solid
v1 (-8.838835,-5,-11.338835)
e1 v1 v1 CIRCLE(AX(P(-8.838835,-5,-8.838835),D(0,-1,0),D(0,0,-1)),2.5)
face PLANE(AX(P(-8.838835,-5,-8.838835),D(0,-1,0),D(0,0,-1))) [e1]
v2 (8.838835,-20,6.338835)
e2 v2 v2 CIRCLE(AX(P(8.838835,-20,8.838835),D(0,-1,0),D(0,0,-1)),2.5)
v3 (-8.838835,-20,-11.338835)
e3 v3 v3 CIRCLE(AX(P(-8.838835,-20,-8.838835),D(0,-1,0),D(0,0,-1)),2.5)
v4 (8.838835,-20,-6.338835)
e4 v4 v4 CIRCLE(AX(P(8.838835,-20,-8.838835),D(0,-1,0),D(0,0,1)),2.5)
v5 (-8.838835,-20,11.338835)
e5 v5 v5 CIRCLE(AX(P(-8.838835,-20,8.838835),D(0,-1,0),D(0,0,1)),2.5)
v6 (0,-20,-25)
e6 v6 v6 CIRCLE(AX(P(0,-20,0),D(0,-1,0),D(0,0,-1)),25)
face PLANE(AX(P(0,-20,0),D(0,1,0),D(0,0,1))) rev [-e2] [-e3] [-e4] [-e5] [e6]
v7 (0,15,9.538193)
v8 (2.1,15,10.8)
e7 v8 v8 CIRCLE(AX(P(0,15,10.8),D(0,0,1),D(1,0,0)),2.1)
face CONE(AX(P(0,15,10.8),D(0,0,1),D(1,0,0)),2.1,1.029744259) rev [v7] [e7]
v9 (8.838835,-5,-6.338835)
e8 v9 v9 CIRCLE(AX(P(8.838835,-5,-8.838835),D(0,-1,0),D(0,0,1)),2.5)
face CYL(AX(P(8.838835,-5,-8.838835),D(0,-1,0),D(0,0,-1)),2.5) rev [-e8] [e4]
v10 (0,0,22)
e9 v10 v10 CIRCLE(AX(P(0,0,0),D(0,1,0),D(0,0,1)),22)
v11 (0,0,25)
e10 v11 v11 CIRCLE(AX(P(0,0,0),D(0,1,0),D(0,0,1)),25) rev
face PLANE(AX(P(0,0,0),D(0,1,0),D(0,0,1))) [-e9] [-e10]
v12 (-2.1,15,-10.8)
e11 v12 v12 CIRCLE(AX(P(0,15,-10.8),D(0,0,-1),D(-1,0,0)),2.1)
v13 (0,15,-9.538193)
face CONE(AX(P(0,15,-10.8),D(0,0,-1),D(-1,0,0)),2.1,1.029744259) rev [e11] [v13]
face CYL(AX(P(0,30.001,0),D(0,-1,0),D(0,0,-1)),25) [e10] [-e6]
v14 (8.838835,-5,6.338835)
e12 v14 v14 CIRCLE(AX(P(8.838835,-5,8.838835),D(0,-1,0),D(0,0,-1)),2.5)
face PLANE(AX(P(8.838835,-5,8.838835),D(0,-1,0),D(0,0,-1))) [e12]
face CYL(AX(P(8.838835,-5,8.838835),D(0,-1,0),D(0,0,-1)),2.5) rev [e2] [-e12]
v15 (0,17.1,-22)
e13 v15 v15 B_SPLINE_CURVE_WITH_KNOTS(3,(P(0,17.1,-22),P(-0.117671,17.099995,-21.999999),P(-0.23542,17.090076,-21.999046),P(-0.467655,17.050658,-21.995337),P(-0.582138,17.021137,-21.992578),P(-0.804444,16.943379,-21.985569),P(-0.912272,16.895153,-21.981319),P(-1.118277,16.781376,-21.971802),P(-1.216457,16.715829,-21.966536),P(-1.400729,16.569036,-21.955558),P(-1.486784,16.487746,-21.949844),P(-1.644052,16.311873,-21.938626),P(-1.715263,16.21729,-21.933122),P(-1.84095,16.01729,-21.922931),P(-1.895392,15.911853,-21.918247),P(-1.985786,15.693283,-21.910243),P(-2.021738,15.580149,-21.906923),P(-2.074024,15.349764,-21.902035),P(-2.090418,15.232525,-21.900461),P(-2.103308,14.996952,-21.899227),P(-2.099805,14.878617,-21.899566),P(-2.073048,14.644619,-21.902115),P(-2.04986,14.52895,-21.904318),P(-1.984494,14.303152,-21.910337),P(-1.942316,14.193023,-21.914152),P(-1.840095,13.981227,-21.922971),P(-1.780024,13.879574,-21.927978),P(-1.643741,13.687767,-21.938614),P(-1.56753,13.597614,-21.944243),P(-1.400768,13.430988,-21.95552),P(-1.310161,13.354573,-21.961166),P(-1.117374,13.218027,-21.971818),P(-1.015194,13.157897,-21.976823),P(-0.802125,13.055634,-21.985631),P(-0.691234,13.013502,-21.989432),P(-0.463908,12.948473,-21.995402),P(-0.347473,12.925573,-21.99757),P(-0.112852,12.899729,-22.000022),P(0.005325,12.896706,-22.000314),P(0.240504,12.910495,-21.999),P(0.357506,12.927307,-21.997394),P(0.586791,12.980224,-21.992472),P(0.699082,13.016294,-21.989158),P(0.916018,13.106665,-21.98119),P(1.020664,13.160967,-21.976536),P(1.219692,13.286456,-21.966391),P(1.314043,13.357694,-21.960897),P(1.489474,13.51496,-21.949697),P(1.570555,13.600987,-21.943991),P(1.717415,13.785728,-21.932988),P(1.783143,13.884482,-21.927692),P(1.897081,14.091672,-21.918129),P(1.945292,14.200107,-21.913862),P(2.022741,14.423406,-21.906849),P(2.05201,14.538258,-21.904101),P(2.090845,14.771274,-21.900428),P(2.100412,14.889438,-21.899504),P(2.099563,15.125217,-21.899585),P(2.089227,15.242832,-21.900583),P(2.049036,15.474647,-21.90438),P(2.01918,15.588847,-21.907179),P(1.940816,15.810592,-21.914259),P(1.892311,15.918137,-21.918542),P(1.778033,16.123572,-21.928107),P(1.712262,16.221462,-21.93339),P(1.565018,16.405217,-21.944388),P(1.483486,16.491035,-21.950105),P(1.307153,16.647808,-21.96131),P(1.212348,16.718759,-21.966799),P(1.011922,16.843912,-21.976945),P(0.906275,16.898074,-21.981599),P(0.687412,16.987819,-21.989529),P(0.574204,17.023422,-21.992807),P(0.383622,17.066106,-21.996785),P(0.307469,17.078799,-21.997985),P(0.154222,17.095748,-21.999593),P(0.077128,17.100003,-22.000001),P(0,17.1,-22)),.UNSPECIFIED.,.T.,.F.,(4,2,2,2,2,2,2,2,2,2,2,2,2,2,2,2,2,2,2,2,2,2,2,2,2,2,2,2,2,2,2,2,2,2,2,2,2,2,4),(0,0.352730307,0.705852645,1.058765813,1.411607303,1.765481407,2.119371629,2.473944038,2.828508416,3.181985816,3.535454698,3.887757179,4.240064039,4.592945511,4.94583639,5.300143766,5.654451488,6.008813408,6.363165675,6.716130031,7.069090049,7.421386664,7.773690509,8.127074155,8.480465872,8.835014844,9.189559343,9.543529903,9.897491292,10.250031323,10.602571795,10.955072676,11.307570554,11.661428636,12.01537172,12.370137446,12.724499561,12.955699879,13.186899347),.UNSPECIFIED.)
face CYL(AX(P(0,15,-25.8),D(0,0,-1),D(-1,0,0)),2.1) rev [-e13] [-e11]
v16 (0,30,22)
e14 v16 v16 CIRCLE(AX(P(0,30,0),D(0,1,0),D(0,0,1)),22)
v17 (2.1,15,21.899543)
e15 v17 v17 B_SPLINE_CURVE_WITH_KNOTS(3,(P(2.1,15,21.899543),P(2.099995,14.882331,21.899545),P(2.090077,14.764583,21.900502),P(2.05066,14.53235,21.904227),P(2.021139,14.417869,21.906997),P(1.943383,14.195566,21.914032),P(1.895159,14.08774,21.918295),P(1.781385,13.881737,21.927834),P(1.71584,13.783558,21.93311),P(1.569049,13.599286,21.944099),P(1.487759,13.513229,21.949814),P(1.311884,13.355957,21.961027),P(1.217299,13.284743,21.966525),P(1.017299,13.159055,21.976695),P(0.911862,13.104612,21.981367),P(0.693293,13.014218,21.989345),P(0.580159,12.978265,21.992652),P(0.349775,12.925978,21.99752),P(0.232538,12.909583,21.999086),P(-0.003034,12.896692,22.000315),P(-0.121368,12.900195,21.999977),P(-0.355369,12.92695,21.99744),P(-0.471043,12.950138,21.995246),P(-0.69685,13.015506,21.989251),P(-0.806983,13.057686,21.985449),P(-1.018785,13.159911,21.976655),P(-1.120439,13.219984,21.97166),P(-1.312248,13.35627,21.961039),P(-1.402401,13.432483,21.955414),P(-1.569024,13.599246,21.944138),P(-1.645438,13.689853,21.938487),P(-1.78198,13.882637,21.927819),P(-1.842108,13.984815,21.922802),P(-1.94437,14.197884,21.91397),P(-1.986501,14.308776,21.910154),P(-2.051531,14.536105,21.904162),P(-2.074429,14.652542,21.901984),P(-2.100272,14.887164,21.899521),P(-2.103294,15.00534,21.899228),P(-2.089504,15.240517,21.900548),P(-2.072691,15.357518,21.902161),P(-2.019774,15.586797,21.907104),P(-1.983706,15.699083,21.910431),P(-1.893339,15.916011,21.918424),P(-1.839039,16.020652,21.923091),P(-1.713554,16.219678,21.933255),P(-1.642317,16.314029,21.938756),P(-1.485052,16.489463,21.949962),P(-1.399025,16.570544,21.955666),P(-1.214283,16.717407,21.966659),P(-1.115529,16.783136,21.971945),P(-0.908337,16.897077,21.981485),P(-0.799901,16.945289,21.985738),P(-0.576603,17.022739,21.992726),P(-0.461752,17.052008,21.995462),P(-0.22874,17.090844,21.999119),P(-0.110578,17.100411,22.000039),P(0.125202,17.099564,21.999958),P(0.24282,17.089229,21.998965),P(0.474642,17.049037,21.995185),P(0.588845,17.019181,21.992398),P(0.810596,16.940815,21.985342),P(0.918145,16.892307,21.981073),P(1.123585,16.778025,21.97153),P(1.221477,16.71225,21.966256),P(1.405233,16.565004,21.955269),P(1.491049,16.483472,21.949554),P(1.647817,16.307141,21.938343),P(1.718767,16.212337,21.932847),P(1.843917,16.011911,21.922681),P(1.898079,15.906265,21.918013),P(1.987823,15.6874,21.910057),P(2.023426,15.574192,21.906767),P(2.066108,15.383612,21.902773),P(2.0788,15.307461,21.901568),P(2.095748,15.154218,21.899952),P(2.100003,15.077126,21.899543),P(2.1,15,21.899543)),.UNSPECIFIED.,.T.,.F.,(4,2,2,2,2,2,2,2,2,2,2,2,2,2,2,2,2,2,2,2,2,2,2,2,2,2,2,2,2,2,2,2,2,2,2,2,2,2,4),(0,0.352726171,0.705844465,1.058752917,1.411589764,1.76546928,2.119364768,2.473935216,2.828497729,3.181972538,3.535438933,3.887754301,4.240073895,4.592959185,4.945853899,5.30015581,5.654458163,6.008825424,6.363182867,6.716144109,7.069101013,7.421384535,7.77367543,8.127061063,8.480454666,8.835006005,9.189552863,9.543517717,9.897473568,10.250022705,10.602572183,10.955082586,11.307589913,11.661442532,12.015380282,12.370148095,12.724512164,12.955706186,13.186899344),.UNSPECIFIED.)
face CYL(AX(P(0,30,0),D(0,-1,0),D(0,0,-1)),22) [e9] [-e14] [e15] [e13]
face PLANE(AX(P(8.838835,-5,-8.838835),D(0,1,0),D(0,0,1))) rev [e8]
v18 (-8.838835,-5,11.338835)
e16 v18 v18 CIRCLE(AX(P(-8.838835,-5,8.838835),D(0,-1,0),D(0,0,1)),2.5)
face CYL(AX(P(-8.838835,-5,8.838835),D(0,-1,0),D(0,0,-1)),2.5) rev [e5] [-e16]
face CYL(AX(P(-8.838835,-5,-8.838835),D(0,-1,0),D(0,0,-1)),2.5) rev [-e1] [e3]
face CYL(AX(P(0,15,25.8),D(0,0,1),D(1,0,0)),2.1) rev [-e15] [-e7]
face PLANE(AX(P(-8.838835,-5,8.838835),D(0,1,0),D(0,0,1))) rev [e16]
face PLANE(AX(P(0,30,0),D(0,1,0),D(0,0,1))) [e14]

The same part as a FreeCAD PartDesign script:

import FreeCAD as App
import Part
import Sketcher
from FreeCAD import Vector
Q = App.Units.Quantity

doc = App.newDocument("Part")
body = doc.addObject("PartDesign::Body", "Body")

sketch1 = doc.addObject("Sketcher::SketchObject", "Sketch")
body.addObject(sketch1)
sketch1.AttachmentSupport = (doc.XZ_Plane, [""])
sketch1.MapMode = "FlatFace"
sketch1.addGeometry(Part.Circle(Vector(0, 0, 0), Vector(0, 0, 1), 22), False)
sketch1.addConstraint([
    Sketcher.Constraint("Coincident", 0, 3, -1, 1),
    Sketcher.Constraint("Diameter", 0, 44.0),
])
pad1 = doc.addObject("PartDesign::Pad", "Pad")
body.addObject(pad1)
pad1.Profile = sketch1
pad1.Length = 30
pad1.Reversed = True

sketch2 = doc.addObject("Sketcher::SketchObject", "Sketch001")
body.addObject(sketch2)
sketch2.AttachmentSupport = (doc.XZ_Plane, [""])
sketch2.MapMode = "FlatFace"
sketch2.addGeometry([
    Part.LineSegment(Vector(-26, 26, 0), Vector(-26, -26, 0)),
    Part.LineSegment(Vector(-26, -26, 0), Vector(26, -26, 0)),
    Part.LineSegment(Vector(26, -26, 0), Vector(26, 26, 0)),
    Part.LineSegment(Vector(26, 26, 0), Vector(-26, 26, 0)),
], False)
sketch2.addConstraint([
    Sketcher.Constraint("Coincident", 0, 2, 1, 1),
    Sketcher.Constraint("Coincident", 1, 2, 2, 1),
    Sketcher.Constraint("Coincident", 2, 2, 3, 1),
    Sketcher.Constraint("Coincident", 3, 2, 0, 1),
    Sketcher.Constraint("Vertical", 0),
    Sketcher.Constraint("Horizontal", 1),
    Sketcher.Constraint("Vertical", 2),
    Sketcher.Constraint("Horizontal", 3),
    Sketcher.Constraint("Symmetric", 0, 2, 2, 2, -1, 1),
    Sketcher.Constraint("Equal", 3, 0),
    Sketcher.Constraint("DistanceX", 1, 1, 1, 2, 51.6),
])
pad2 = doc.addObject("PartDesign::Pad", "Pad001")
body.addObject(pad2)
pad2.Profile = sketch2
pad2.Length = 20

sketch3 = doc.addObject("Sketcher::SketchObject", "Sketch002")
body.addObject(sketch3)
sketch3.AttachmentSupport = (doc.YZ_Plane, [""])
sketch3.MapMode = "FlatFace"
sketch3.addGeometry([
    Part.LineSegment(Vector(15, 9.5, 0), Vector(15, 25.8, 0)),
    Part.LineSegment(Vector(15, 25.8, 0), Vector(12.9, 25.8, 0)),
    Part.LineSegment(Vector(12.9, 25.8, 0), Vector(12.9, 10.8, 0)),
    Part.LineSegment(Vector(12.9, 10.8, 0), Vector(15, 9.5, 0)),
], False)
sketch3.addGeometry(Part.LineSegment(Vector(15, 25.8, 0), Vector(15, 9.5, 0)), True)
sketch3.addConstraint([
    Sketcher.Constraint("Coincident", 0, 2, 1, 1),
    Sketcher.Constraint("Coincident", 1, 2, 2, 1),
    Sketcher.Constraint("Coincident", 2, 2, 3, 1),
    Sketcher.Constraint("Coincident", 3, 2, 0, 1),
    Sketcher.Constraint("Vertical", 0),
    Sketcher.Constraint("Horizontal", 1),
    Sketcher.Constraint("Vertical", 2),
    Sketcher.Constraint("Vertical", 4),
    Sketcher.Constraint("Coincident", 4, 1, 0, 2),
    Sketcher.Constraint("Equal", 0, 4),
    Sketcher.Constraint("DistanceY", 2, 2, 2, 1, 15.0),
    Sketcher.Constraint("Angle", 3, Q("-31 deg")),
    Sketcher.Constraint("DistanceX", 1, 2, 1, 1, 2.1),
    Sketcher.Constraint("DistanceX", -1, 1, 0, 2, 15.0),
    Sketcher.Constraint("DistanceY", -1, 1, 0, 2, 25.8),
])
groove = doc.addObject("PartDesign::Groove", "Groove")
body.addObject(groove)
groove.Profile = sketch3
groove.ReferenceAxis = (sketch3, ["Axis0"])
groove.Angle = 360
doc.recompute()

mirrored = doc.addObject("PartDesign::Mirrored", "Mirrored")
body.addObject(mirrored)
mirrored.Originals = [groove]
mirrored.MirrorPlane = (doc.XY_Plane, [""])
body.Tip = mirrored

sketch4 = doc.addObject("Sketcher::SketchObject", "Sketch003")
body.addObject(sketch4)
sketch4.AttachmentSupport = (doc.XZ_Plane, [""])
sketch4.MapMode = "FlatFace"
sketch4.AttachmentOffset = App.Placement(Vector(0, 0, 20), App.Rotation())
sketch4.addGeometry([
    Part.LineSegment(Vector(-26, 26, 0), Vector(-26, -26, 0)),
    Part.LineSegment(Vector(-26, -26, 0), Vector(26, -26, 0)),
    Part.LineSegment(Vector(26, -26, 0), Vector(26, 26, 0)),
    Part.LineSegment(Vector(26, 26, 0), Vector(-26, 26, 0)),
    Part.Circle(Vector(0, 0, 0), Vector(0, 0, 1), 25),
], False)
sketch4.addConstraint([
    Sketcher.Constraint("Coincident", 0, 2, 1, 1),
    Sketcher.Constraint("Coincident", 1, 2, 2, 1),
    Sketcher.Constraint("Coincident", 2, 2, 3, 1),
    Sketcher.Constraint("Coincident", 3, 2, 0, 1),
    Sketcher.Constraint("Vertical", 0),
    Sketcher.Constraint("Horizontal", 1),
    Sketcher.Constraint("Vertical", 2),
    Sketcher.Constraint("Horizontal", 3),
    Sketcher.Constraint("Coincident", 4, 3, -1, 1),
    Sketcher.Constraint("Symmetric", 0, 2, 2, 2, -1, 1),
    Sketcher.Constraint("Equal", 3, 0),
    Sketcher.Constraint("Diameter", 4, 50.0),
    Sketcher.Constraint("DistanceX", 1, 1, 1, 2, 51.6),
])
pocket1 = doc.addObject("PartDesign::Pocket", "Pocket")
body.addObject(pocket1)
pocket1.Profile = sketch4
pocket1.Type = "UpToFirst"

sketch5 = doc.addObject("Sketcher::SketchObject", "Sketch004")
body.addObject(sketch5)
sketch5.AttachmentSupport = (doc.XZ_Plane, [""])
sketch5.MapMode = "FlatFace"
sketch5.AttachmentOffset = App.Placement(Vector(0, 0, 20), App.Rotation())
sketch5.addGeometry([
    Part.Circle(Vector(8.8, 8.8, 0), Vector(0, 0, 1), 2.5),
    Part.Circle(Vector(-8.8, 8.8, 0), Vector(0, 0, 1), 2.5),
    Part.Circle(Vector(8.8, -8.8, 0), Vector(0, 0, 1), 2.5),
    Part.Circle(Vector(-8.8, -8.8, 0), Vector(0, 0, 1), 2.5),
], False)
sketch5.addConstraint([
    Sketcher.Constraint("Equal", 0, 1),
    Sketcher.Constraint("Equal", 1, 2),
    Sketcher.Constraint("Equal", 2, 3),
    Sketcher.Constraint("Symmetric", 1, 3, 2, 3, -1, 1),
    Sketcher.Constraint("Symmetric", 0, 3, 3, 3, -1, 1),
    Sketcher.Constraint("Symmetric", 0, 3, 1, 3, -2),
    Sketcher.Constraint("Diameter", 0, 5.0),
    Sketcher.Constraint("DistanceX", 1, 3, 0, 3, 17.67767),
    Sketcher.Constraint("DistanceY", 2, 3, 0, 3, 17.67767),
])
pocket2 = doc.addObject("PartDesign::Pocket", "Pocket001")
body.addObject(pocket2)
pocket2.Profile = sketch5
pocket2.Length = 15

doc.recompute()
